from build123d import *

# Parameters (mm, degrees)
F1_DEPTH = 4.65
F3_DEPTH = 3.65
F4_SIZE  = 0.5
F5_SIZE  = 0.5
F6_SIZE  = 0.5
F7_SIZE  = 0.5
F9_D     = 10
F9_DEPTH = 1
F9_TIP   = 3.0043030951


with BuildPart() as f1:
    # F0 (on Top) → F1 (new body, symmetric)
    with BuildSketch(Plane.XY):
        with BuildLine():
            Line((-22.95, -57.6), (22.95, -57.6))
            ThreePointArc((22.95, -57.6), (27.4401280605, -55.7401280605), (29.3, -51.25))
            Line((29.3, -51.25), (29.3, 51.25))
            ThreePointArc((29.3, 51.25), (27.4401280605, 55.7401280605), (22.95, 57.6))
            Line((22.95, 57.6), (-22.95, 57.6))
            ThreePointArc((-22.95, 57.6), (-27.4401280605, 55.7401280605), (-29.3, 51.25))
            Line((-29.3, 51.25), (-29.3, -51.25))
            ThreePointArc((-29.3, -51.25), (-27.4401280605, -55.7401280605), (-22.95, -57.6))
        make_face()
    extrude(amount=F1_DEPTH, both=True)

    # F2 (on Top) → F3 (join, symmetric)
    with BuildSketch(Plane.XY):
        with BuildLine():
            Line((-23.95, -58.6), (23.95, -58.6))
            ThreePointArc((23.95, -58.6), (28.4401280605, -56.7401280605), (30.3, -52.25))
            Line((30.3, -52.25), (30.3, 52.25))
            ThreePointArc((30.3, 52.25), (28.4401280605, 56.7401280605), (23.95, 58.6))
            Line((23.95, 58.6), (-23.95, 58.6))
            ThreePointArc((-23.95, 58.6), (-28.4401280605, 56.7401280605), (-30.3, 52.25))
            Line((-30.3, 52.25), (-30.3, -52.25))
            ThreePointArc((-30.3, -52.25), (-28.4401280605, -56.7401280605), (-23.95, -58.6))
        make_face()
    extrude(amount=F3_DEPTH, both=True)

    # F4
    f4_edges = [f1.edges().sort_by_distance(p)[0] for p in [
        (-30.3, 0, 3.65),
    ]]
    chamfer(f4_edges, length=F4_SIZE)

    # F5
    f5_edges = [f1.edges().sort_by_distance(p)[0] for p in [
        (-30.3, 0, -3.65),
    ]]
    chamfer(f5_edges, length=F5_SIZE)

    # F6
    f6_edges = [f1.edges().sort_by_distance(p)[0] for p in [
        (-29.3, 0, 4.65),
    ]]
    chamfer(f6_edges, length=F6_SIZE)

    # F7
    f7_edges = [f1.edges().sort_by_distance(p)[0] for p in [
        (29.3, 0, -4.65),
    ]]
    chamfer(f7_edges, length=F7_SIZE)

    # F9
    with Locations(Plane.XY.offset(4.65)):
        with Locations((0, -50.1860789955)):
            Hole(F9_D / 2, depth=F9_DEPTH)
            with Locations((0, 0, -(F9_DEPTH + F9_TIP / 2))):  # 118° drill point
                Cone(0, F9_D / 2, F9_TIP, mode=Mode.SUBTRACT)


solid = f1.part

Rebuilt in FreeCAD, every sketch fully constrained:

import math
import FreeCAD as App
import Part
import Sketcher


def edges_at(feature, points):
    """Names of the edges that pass closest to the given points."""
    edges = feature.Shape.Edges
    near = lambda p: min(range(len(edges)), key=lambda i: edges[i].distToShape(Part.Vertex(*p))[0])
    return sorted({f"Edge{near(p) + 1}" for p in points})

doc = App.newDocument("Part")
params = doc.addObject("Spreadsheet::Sheet", "Params")
for row, (alias, value) in enumerate([
    ("sketch1_radius", "6.35 mm"),
    ("sketch1_width", "45.9 mm"),
    ("sketch1_height", "102.5 mm"),
    ("pad1_length", "9.3 mm"),
    ("sketch2_radius", "6.35 mm"),
    ("sketch2_width", "47.9 mm"),
    ("sketch2_height", "104.5 mm"),
    ("pad2_length", "7.3 mm"),
    ("chamfer_size", "0.5 mm"),
    ("chamfer2_size", "0.5 mm"),
    ("chamfer3_size", "0.5 mm"),
    ("chamfer4_size", "0.5 mm"),
    ("sketch3_diameter", "10 mm"),
    ("hole_diameter", "10 mm"),
    ("hole_depth", "1 mm"),
], start=1):
    params.set(f"A{row}", alias)
    params.set(f"B{row}", "=" + value)
    params.setAlias(f"B{row}", alias)

body = doc.addObject("PartDesign::Body", "Body")

sketch1 = body.newObject("Sketcher::SketchObject", "Sketch")
sketch1.AttachmentSupport = (doc.getObject("XY_Plane"), [""])
sketch1.MapMode = "FlatFace"
sketch1.addGeometry(Part.LineSegment(App.Vector(-23, -58, 0), App.Vector(23, -58, 0)), False)
sketch1.addGeometry(Part.ArcOfCircle(Part.Circle(App.Vector(23, -51, 0), App.Vector(0, 0, 1), 6), math.radians(-90), math.radians(0)), False)
sketch1.addGeometry(Part.LineSegment(App.Vector(29, -51, 0), App.Vector(29, 51, 0)), False)
sketch1.addGeometry(Part.ArcOfCircle(Part.Circle(App.Vector(23, 51, 0), App.Vector(0, 0, 1), 6), math.radians(0), math.radians(90)), False)
sketch1.addGeometry(Part.LineSegment(App.Vector(23, 58, 0), App.Vector(-23, 58, 0)), False)
sketch1.addGeometry(Part.ArcOfCircle(Part.Circle(App.Vector(-23, 51, 0), App.Vector(0, 0, 1), 6), math.radians(90), math.radians(180)), False)
sketch1.addGeometry(Part.LineSegment(App.Vector(-29, 51, 0), App.Vector(-29, -51, 0)), False)
sketch1.addGeometry(Part.ArcOfCircle(Part.Circle(App.Vector(-23, -51, 0), App.Vector(0, 0, 1), 6), math.radians(180), math.radians(270)), False)
sketch1.addConstraint(Sketcher.Constraint("Tangent", 0, 2, 1, 1))
sketch1.addConstraint(Sketcher.Constraint("Tangent", 1, 2, 2, 1))
sketch1.addConstraint(Sketcher.Constraint("Tangent", 2, 2, 3, 1))
sketch1.addConstraint(Sketcher.Constraint("Tangent", 3, 2, 4, 1))
sketch1.addConstraint(Sketcher.Constraint("Tangent", 4, 2, 5, 1))
sketch1.addConstraint(Sketcher.Constraint("Tangent", 5, 2, 6, 1))
sketch1.addConstraint(Sketcher.Constraint("Tangent", 6, 2, 7, 1))
sketch1.addConstraint(Sketcher.Constraint("Tangent", 7, 2, 0, 1))
sketch1.addConstraint(Sketcher.Constraint("Horizontal", 0))
sketch1.addConstraint(Sketcher.Constraint("Vertical", 2))
sketch1.addConstraint(Sketcher.Constraint("Horizontal", 4))
sketch1.addConstraint(Sketcher.Constraint("Vertical", 6))
sketch1.addConstraint(Sketcher.Constraint("Equal", 1, 3))
sketch1.addConstraint(Sketcher.Constraint("Equal", 3, 5))
sketch1.addConstraint(Sketcher.Constraint("Equal", 5, 7))
sketch1.addConstraint(Sketcher.Constraint("Symmetric", 1, 3, 5, 3, -1, 1))
sketch1.addConstraint(Sketcher.Constraint("Radius", 1, 6.35))
sketch1.addConstraint(Sketcher.Constraint("DistanceX", 0, 1, 0, 2, 45.9))
sketch1.addConstraint(Sketcher.Constraint("DistanceY", 2, 1, 2, 2, 102.5))
sketch1.setExpression("Constraints[16]", "Params.sketch1_radius")
sketch1.setExpression("Constraints[17]", "Params.sketch1_width")
sketch1.setExpression("Constraints[18]", "Params.sketch1_height")
pad1 = body.newObject("PartDesign::Pad", "Pad")
pad1.Profile = sketch1
pad1.setExpression("Length", "Params.pad1_length")
pad1.Midplane = True

sketch2 = body.newObject("Sketcher::SketchObject", "Sketch001")
sketch2.AttachmentSupport = (doc.getObject("XY_Plane"), [""])
sketch2.MapMode = "FlatFace"
sketch2.addGeometry(Part.LineSegment(App.Vector(-24, -59, 0), App.Vector(24, -59, 0)), False)
sketch2.addGeometry(Part.ArcOfCircle(Part.Circle(App.Vector(24, -52, 0), App.Vector(0, 0, 1), 6), math.radians(-90), math.radians(0)), False)
sketch2.addGeometry(Part.LineSegment(App.Vector(30, -52, 0), App.Vector(30, 52, 0)), False)
sketch2.addGeometry(Part.ArcOfCircle(Part.Circle(App.Vector(24, 52, 0), App.Vector(0, 0, 1), 6), math.radians(0), math.radians(90)), False)
sketch2.addGeometry(Part.LineSegment(App.Vector(24, 59, 0), App.Vector(-24, 59, 0)), False)
sketch2.addGeometry(Part.ArcOfCircle(Part.Circle(App.Vector(-24, 52, 0), App.Vector(0, 0, 1), 6), math.radians(90), math.radians(180)), False)
sketch2.addGeometry(Part.LineSegment(App.Vector(-30, 52, 0), App.Vector(-30, -52, 0)), False)
sketch2.addGeometry(Part.ArcOfCircle(Part.Circle(App.Vector(-24, -52, 0), App.Vector(0, 0, 1), 6), math.radians(180), math.radians(270)), False)
sketch2.addConstraint(Sketcher.Constraint("Tangent", 0, 2, 1, 1))
sketch2.addConstraint(Sketcher.Constraint("Tangent", 1, 2, 2, 1))
sketch2.addConstraint(Sketcher.Constraint("Tangent", 2, 2, 3, 1))
sketch2.addConstraint(Sketcher.Constraint("Tangent", 3, 2, 4, 1))
sketch2.addConstraint(Sketcher.Constraint("Tangent", 4, 2, 5, 1))
sketch2.addConstraint(Sketcher.Constraint("Tangent", 5, 2, 6, 1))
sketch2.addConstraint(Sketcher.Constraint("Tangent", 6, 2, 7, 1))
sketch2.addConstraint(Sketcher.Constraint("Tangent", 7, 2, 0, 1))
sketch2.addConstraint(Sketcher.Constraint("Horizontal", 0))
sketch2.addConstraint(Sketcher.Constraint("Vertical", 2))
sketch2.addConstraint(Sketcher.Constraint("Horizontal", 4))
sketch2.addConstraint(Sketcher.Constraint("Vertical", 6))
sketch2.addConstraint(Sketcher.Constraint("Equal", 1, 3))
sketch2.addConstraint(Sketcher.Constraint("Equal", 3, 5))
sketch2.addConstraint(Sketcher.Constraint("Equal", 5, 7))
sketch2.addConstraint(Sketcher.Constraint("Symmetric", 1, 3, 5, 3, -1, 1))
sketch2.addConstraint(Sketcher.Constraint("Radius", 1, 6.35))
sketch2.addConstraint(Sketcher.Constraint("DistanceX", 0, 1, 0, 2, 47.9))
sketch2.addConstraint(Sketcher.Constraint("DistanceY", 2, 1, 2, 2, 104.5))
sketch2.setExpression("Constraints[16]", "Params.sketch2_radius")
sketch2.setExpression("Constraints[17]", "Params.sketch2_width")
sketch2.setExpression("Constraints[18]", "Params.sketch2_height")
pad2 = body.newObject("PartDesign::Pad", "Pad001")
pad2.Profile = sketch2
pad2.setExpression("Length", "Params.pad2_length")
pad2.Midplane = True
doc.recompute()

chamfer = body.newObject("PartDesign::Chamfer", "Chamfer")
chamfer.Base = (pad2, edges_at(pad2, [(-30.3, 0, 3.65)]))
chamfer.setExpression("Size", "Params.chamfer_size")
doc.recompute()

chamfer2 = body.newObject("PartDesign::Chamfer", "Chamfer001")
chamfer2.Base = (chamfer, edges_at(chamfer, [(-30.3, 0, -3.65)]))
chamfer2.setExpression("Size", "Params.chamfer2_size")
doc.recompute()

chamfer3 = body.newObject("PartDesign::Chamfer", "Chamfer002")
chamfer3.Base = (chamfer2, edges_at(chamfer2, [(-29.3, 0, 4.65)]))
chamfer3.setExpression("Size", "Params.chamfer3_size")
doc.recompute()

chamfer4 = body.newObject("PartDesign::Chamfer", "Chamfer003")
chamfer4.Base = (chamfer3, edges_at(chamfer3, [(29.3, 0, -4.65)]))
chamfer4.setExpression("Size", "Params.chamfer4_size")

sketch3 = body.newObject("Sketcher::SketchObject", "Sketch002")
sketch3.AttachmentSupport = (doc.getObject("XY_Plane"), [""])
sketch3.MapMode = "FlatFace"
sketch3.AttachmentOffset = App.Placement(App.Vector(0, 0, 4.65), App.Rotation())
sketch3.addGeometry(Part.Circle(App.Vector(0, -50, 0), App.Vector(0, 0, 1), 5), False)
sketch3.addConstraint(Sketcher.Constraint("PointOnObject", 0, 3, -2))
sketch3.addConstraint(Sketcher.Constraint("Diameter", 0, 10.0))
sketch3.addConstraint(Sketcher.Constraint("DistanceY", 0, 3, -1, 1, 50.186079))
sketch3.setExpression("Constraints[1]", "Params.sketch3_diameter")
doc.recompute()
hole = body.newObject("PartDesign::Hole", "Hole")
hole.Profile = sketch3
hole.ThreadType = "None"
hole.setExpression("Diameter", "Params.hole_diameter")
hole.DepthType = "Dimension"
hole.setExpression("Depth", "Params.hole_depth")
hole.DrillPoint = "Angled"
hole.DrillPointAngle = 118

doc.recompute()
